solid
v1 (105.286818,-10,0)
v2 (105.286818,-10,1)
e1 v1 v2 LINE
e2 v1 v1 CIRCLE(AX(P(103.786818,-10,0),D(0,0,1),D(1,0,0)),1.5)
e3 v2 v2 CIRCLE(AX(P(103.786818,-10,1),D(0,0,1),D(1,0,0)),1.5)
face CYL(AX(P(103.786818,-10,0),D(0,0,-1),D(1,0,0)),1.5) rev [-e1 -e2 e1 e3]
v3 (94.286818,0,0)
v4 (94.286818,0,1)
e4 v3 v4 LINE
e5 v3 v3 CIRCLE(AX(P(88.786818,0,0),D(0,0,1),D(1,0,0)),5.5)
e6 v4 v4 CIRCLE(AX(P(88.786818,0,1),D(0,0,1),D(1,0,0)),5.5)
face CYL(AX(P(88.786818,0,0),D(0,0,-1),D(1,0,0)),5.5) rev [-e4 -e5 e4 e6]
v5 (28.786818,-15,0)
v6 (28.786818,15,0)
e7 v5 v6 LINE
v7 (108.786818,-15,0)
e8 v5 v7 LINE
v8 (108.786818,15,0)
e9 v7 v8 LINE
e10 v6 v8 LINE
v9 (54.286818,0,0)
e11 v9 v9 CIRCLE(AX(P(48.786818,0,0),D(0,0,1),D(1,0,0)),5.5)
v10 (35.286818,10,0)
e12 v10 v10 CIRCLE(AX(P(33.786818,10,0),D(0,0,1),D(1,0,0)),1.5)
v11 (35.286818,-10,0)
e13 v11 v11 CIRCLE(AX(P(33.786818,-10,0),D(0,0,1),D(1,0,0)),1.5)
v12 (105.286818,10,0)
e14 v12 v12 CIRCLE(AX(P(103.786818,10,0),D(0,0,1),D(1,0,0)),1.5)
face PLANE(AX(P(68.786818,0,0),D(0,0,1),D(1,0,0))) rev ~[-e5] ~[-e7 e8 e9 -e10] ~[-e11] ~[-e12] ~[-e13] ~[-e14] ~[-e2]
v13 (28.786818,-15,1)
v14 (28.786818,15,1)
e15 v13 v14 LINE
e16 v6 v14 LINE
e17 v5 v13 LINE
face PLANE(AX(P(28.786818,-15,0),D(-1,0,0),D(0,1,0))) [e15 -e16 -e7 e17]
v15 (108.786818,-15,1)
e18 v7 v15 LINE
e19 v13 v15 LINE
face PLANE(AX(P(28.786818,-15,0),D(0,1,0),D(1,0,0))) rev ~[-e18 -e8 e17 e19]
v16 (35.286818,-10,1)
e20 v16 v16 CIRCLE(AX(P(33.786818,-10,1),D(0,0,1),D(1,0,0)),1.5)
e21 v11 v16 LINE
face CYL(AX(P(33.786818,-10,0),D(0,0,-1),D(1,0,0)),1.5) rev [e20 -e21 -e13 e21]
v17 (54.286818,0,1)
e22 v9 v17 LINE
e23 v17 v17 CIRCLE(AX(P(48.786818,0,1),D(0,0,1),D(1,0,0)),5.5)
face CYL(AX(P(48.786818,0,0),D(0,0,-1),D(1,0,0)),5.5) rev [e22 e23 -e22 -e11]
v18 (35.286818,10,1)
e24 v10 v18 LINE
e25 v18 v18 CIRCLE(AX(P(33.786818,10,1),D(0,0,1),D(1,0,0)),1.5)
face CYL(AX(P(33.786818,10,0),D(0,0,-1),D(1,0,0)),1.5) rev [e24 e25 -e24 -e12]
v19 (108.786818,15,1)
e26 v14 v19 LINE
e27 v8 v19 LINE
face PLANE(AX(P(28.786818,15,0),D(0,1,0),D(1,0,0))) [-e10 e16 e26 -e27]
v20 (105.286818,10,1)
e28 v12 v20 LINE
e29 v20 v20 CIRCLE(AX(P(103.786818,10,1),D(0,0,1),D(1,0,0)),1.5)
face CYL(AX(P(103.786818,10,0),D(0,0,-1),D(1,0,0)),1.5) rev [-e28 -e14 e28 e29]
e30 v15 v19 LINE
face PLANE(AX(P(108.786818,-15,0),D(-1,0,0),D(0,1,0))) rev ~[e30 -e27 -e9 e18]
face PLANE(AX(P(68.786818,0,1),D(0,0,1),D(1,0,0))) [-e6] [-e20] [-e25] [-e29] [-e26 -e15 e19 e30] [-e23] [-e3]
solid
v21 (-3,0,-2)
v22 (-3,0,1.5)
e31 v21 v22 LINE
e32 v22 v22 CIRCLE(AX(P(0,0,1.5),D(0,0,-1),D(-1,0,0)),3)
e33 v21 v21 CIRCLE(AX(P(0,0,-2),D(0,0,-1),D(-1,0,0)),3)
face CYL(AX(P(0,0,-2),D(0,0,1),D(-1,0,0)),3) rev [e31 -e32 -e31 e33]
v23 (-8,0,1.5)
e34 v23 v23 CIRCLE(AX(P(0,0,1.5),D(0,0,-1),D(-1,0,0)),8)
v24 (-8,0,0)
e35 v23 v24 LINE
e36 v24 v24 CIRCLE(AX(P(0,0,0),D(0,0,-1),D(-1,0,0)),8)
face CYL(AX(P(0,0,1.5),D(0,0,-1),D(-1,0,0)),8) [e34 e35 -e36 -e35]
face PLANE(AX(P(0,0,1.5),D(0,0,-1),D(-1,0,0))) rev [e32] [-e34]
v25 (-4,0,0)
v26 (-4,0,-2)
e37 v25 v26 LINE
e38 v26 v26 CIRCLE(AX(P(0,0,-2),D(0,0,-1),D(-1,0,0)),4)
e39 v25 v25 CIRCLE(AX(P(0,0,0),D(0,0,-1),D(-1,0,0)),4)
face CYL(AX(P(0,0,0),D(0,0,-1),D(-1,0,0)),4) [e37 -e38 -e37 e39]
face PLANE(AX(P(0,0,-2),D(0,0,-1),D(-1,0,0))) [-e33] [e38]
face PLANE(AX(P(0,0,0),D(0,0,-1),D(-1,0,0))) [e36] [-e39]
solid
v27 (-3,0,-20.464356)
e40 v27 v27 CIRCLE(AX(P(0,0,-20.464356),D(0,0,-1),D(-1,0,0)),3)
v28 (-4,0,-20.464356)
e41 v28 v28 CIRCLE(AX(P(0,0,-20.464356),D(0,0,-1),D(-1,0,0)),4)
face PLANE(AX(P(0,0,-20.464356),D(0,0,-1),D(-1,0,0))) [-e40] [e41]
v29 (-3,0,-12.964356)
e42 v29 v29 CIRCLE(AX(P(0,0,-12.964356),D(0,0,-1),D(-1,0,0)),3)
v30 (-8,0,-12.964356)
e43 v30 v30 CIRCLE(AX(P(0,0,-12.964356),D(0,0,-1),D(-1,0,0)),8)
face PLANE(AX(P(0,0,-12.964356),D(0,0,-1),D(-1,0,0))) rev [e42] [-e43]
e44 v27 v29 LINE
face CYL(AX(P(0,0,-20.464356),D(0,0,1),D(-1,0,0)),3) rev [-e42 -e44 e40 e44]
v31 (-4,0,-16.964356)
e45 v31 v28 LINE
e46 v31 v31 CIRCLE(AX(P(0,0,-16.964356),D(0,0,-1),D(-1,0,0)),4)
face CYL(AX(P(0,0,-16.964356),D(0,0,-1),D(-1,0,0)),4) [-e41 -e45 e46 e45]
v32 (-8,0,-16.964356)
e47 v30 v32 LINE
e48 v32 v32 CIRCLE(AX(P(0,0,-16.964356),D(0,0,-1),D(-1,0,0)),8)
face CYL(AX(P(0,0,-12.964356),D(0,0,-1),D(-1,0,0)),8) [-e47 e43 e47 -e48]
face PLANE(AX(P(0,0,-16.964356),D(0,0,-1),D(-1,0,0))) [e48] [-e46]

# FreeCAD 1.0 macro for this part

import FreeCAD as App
import Part
import Sketcher


def add_polygon(sketch, points):
    """Adds a closed chain of lines whose ends are joined by coincident constraints."""
    first, n = sketch.GeometryCount, len(points)
    for a, b in zip(points, points[1:] + points[:1]):
        sketch.addGeometry(Part.LineSegment(App.Vector(*a, 0), App.Vector(*b, 0)), False)
    for i in range(n):
        sketch.addConstraint(Sketcher.Constraint("Coincident", first + i, 2, first + (i + 1) % n, 1))

doc = App.newDocument("Part")
body = doc.addObject("PartDesign::Body", "Body")

sketch1 = body.newObject("Sketcher::SketchObject", "Sketch")
sketch1.AttachmentSupport = (doc.getObject("XZ_Plane"), [""])
sketch1.MapMode = "FlatFace"
add_polygon(sketch1, [(-3, -2), (-3, 1.5), (-8, 1.5), (-8, 0), (-4, 0), (-4, -2)])
sketch1.addConstraint([
    Sketcher.Constraint("Vertical", 0),
    Sketcher.Constraint("Horizontal", 1),
    Sketcher.Constraint("Vertical", 2),
    Sketcher.Constraint("Horizontal", 3),
    Sketcher.Constraint("Vertical", 4),
    Sketcher.Constraint("Horizontal", 5),
    Sketcher.Constraint("PointOnObject", 2, 2, -1),
    Sketcher.Constraint("DistanceX", 1, 2, 1, 1, 5.0),
    Sketcher.Constraint("DistanceX", 3, 1, 3, 2, 4.0),
    Sketcher.Constraint("DistanceY", 4, 2, 4, 1, 2.0),
    Sketcher.Constraint("DistanceY", 0, 1, 0, 2, 3.5),
    Sketcher.Constraint("DistanceX", 0, 2, -1, 1, 3.0),
])
revolution = body.newObject("PartDesign::Revolution", "Revolution")
revolution.Profile = sketch1
revolution.ReferenceAxis = (sketch1, ["V_Axis"])
revolution.Angle = 360
body2 = doc.addObject("PartDesign::Body", "Body001")

sketch2 = body2.newObject("Sketcher::SketchObject", "Sketch001")
sketch2.AttachmentSupport = (doc.getObject("XY_Plane001"), [""])
sketch2.MapMode = "FlatFace"
add_polygon(sketch2, [(28.8, 15), (28.8, -15), (108.8, -15), (108.8, 15)])
sketch2.addGeometry(Part.Circle(App.Vector(33.8, -10, 0), App.Vector(0, 0, 1), 1.5), False)
sketch2.addGeometry(Part.Circle(App.Vector(103.8, -10, 0), App.Vector(0, 0, 1), 1.5), False)
sketch2.addGeometry(Part.Circle(App.Vector(48.8, 0, 0), App.Vector(0, 0, 1), 5.5), False)
sketch2.addGeometry(Part.Circle(App.Vector(33.8, 10, 0), App.Vector(0, 0, 1), 1.5), False)
sketch2.addGeometry(Part.Circle(App.Vector(88.8, 0, 0), App.Vector(0, 0, 1), 5.5), False)
sketch2.addGeometry(Part.Circle(App.Vector(103.8, 10, 0), App.Vector(0, 0, 1), 1.5), False)
sketch2.addConstraint([
    Sketcher.Constraint("Vertical", 0),
    Sketcher.Constraint("Horizontal", 1),
    Sketcher.Constraint("Vertical", 2),
    Sketcher.Constraint("Horizontal", 3),
    Sketcher.Constraint("Equal", 4, 5),
    Sketcher.Constraint("Equal", 5, 7),
    Sketcher.Constraint("Equal", 6, 8),
    Sketcher.Constraint("Equal", 7, 9),
    Sketcher.Constraint("Symmetric", 4, 3, 7, 3, -1),
    Sketcher.Constraint("Symmetric", 5, 3, 9, 3, -1),
    Sketcher.Constraint("PointOnObject", 6, 3, -1),
    Sketcher.Constraint("PointOnObject", 8, 3, -1),
    Sketcher.Constraint("Horizontal", 4, 3, 5, 3),
    Sketcher.Constraint("Diameter", 4, 3.0),
    Sketcher.Constraint("Diameter", 6, 11.0),
    Sketcher.Constraint("DistanceX", 1, 1, 1, 2, 80.0),
    Sketcher.Constraint("DistanceY", 0, 2, 0, 1, 30.0),
    Sketcher.Constraint("DistanceY", 4, 3, -1, 1, 10.0),
    Sketcher.Constraint("DistanceY", 0, 2, -1, 1, 15.0),
    Sketcher.Constraint("DistanceX", 4, 3, 5, 3, 70.0),
    Sketcher.Constraint("DistanceX", 4, 3, 6, 3, 15.0),
    Sketcher.Constraint("DistanceX", 8, 3, 5, 3, 15.0),
    Sketcher.Constraint("DistanceX", 0, 2, 4, 3, 5.0),
    Sketcher.Constraint("DistanceX", -1, 1, 0, 2, 28.786818),
])
pad1 = body2.newObject("PartDesign::Pad", "Pad")
pad1.Profile = sketch2
pad1.Length = 1
body3 = doc.addObject("PartDesign::Body", "Body002")

sketch3 = body3.newObject("Sketcher::SketchObject", "Sketch002")
sketch3.AttachmentSupport = (doc.getObject("XZ_Plane002"), [""])
sketch3.MapMode = "FlatFace"
add_polygon(sketch3, [(-3, -20.5), (-3, -13), (-8, -13), (-8, -17), (-4, -17), (-4, -20.5)])
sketch3.addConstraint([
    Sketcher.Constraint("Vertical", 0),
    Sketcher.Constraint("Horizontal", 1),
    Sketcher.Constraint("Vertical", 2),
    Sketcher.Constraint("Horizontal", 3),
    Sketcher.Constraint("Vertical", 4),
    Sketcher.Constraint("Horizontal", 5),
    Sketcher.Constraint("Equal", 3, 2),
    Sketcher.Constraint("DistanceX", 1, 2, 1, 1, 5.0),
    Sketcher.Constraint("DistanceX", 3, 1, 3, 2, 4.0),
    Sketcher.Constraint("DistanceY", 0, 1, 0, 2, 7.5),
    Sketcher.Constraint("DistanceX", 0, 2, -1, 1, 3.0),
    Sketcher.Constraint("DistanceY", 0, 2, -1, 1, 12.964356),
])
revolution2 = body3.newObject("PartDesign::Revolution", "Revolution001")
revolution2.Profile = sketch3
revolution2.ReferenceAxis = (sketch3, ["V_Axis"])
revolution2.Angle = 360

doc.recompute()
